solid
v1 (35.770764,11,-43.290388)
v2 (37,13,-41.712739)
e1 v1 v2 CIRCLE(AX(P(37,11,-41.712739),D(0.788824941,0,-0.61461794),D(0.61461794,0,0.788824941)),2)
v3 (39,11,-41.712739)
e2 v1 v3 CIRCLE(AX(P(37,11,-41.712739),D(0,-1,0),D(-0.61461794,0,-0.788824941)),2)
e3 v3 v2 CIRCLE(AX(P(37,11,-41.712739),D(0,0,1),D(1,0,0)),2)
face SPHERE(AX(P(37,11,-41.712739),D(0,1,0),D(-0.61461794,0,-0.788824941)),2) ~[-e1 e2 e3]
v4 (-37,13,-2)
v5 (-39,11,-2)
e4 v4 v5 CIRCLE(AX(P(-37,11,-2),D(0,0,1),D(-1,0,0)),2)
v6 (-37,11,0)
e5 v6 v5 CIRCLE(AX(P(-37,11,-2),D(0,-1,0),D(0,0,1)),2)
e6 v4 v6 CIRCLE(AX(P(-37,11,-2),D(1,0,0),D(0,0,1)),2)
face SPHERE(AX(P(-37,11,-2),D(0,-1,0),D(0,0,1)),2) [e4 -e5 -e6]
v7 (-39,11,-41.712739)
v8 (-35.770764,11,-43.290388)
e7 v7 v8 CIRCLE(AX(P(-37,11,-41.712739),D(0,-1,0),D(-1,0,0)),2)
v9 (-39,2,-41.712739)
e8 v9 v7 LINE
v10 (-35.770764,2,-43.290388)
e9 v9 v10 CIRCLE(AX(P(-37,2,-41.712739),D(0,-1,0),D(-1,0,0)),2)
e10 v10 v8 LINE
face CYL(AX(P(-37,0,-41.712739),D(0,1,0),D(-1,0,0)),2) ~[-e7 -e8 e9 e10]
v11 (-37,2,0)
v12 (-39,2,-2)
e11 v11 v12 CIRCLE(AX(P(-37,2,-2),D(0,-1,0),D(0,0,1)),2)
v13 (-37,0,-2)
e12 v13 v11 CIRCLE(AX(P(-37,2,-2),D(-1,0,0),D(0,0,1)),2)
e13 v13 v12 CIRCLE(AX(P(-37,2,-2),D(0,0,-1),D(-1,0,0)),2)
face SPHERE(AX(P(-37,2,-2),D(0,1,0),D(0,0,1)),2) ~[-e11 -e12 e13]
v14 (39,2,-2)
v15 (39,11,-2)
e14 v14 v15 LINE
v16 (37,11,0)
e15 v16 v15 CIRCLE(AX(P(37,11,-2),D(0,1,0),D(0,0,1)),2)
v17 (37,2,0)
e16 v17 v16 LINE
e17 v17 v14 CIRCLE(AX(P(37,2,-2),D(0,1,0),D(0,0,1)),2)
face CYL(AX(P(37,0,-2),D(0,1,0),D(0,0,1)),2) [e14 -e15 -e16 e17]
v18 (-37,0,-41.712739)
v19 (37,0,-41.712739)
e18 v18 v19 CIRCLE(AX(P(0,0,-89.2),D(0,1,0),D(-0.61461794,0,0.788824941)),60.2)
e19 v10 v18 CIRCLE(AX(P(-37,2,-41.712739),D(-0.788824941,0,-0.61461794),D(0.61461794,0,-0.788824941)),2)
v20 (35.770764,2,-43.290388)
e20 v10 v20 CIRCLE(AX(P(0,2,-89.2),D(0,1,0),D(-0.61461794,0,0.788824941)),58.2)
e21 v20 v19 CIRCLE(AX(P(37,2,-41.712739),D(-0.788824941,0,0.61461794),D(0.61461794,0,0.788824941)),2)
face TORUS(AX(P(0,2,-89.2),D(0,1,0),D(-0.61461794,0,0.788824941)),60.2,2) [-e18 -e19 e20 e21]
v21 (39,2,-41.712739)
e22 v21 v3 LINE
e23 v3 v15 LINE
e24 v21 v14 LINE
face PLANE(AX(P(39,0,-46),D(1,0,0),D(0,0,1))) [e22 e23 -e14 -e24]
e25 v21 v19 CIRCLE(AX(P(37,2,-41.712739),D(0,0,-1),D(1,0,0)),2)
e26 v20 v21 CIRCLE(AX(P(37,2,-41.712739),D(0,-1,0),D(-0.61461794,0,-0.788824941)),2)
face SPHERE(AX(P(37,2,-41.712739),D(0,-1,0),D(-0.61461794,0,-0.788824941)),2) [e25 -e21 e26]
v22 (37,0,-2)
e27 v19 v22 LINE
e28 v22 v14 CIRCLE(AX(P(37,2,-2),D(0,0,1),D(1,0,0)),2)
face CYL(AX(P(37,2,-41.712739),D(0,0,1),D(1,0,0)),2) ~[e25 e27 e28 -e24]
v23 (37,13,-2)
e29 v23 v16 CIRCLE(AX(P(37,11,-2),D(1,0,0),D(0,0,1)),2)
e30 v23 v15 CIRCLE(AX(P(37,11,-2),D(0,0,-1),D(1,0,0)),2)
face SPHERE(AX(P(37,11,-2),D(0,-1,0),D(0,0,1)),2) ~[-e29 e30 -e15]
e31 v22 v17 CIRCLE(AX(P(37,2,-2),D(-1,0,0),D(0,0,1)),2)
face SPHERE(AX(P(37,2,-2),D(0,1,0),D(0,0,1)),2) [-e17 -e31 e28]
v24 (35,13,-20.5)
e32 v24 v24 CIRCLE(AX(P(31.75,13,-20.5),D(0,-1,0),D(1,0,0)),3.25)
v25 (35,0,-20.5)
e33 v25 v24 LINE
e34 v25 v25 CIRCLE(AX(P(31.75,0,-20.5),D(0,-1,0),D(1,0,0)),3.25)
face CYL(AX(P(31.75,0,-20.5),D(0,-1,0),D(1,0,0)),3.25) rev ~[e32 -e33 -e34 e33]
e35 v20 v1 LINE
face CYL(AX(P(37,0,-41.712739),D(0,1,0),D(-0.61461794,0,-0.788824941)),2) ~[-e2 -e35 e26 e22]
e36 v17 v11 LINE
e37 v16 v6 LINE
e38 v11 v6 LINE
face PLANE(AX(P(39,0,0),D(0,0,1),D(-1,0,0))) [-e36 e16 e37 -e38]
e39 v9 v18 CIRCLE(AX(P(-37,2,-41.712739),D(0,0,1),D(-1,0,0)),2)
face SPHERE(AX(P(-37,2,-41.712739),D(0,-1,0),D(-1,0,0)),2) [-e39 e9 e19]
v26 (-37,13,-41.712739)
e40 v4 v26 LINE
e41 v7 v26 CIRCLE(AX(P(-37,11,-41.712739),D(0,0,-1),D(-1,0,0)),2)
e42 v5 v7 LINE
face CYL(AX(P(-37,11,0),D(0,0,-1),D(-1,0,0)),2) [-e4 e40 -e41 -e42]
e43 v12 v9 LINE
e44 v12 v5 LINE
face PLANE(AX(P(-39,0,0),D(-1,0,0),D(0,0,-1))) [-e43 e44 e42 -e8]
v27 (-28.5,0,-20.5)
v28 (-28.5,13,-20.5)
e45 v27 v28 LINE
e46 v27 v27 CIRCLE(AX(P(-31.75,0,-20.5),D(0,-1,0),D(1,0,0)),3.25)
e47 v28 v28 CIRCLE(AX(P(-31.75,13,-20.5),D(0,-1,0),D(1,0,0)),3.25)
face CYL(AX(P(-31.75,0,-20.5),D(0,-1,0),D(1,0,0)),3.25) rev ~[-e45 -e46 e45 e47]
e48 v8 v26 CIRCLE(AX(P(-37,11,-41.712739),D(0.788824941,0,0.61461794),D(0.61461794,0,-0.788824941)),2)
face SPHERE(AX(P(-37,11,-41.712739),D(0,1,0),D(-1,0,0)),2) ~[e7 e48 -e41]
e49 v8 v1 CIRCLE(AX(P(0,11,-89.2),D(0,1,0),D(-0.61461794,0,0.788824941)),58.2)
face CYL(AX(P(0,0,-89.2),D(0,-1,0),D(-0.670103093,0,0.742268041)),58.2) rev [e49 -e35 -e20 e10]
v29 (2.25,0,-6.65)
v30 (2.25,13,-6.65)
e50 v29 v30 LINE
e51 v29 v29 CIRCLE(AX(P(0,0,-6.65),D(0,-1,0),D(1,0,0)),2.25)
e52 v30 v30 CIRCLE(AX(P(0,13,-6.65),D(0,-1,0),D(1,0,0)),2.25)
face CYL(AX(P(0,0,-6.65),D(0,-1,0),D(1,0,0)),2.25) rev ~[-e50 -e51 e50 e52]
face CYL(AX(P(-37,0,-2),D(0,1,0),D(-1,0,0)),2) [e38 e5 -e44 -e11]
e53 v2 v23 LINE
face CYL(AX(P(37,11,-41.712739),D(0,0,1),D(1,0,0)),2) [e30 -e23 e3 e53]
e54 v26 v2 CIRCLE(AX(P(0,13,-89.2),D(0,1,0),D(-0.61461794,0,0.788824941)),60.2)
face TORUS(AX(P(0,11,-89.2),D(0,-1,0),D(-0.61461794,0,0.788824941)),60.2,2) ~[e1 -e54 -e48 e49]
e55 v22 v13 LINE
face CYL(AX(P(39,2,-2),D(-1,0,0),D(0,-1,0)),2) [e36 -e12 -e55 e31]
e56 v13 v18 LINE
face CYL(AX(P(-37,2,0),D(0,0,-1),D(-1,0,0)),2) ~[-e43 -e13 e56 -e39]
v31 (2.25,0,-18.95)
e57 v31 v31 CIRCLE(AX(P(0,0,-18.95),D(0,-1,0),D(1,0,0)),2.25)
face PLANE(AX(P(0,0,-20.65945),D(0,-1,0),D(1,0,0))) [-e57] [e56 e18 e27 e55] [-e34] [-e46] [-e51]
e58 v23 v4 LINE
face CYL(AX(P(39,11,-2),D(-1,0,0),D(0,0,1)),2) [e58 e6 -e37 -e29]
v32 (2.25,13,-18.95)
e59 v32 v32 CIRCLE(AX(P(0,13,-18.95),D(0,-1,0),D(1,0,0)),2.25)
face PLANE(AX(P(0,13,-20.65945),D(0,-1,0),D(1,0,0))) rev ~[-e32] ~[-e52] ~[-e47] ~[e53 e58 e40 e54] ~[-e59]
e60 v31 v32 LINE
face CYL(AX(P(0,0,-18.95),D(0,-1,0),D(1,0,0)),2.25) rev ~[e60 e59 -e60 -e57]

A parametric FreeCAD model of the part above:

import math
import FreeCAD as App
import Part
import Sketcher


def edges_at(feature, points):
    """Names of the edges that pass closest to the given points."""
    edges = feature.Shape.Edges
    near = lambda p: min(range(len(edges)), key=lambda i: edges[i].distToShape(Part.Vertex(*p))[0])
    return sorted({f"Edge{near(p) + 1}" for p in points})

doc = App.newDocument("Part")
body = doc.addObject("PartDesign::Body", "Body")

sketch1 = body.newObject("Sketcher::SketchObject", "Sketch")
sketch1.AttachmentSupport = (doc.getObject("XZ_Plane"), [""])
sketch1.MapMode = "FlatFace"
sketch1.addGeometry(Part.LineSegment(App.Vector(-39, 0, 0), App.Vector(-39, -46, 0)), False)
sketch1.addGeometry(Part.ArcOfCircle(Part.Circle(App.Vector(0, -89.2, 0), App.Vector(0, 0, 1), 58.2), math.radians(48), math.radians(132)), False)
sketch1.addGeometry(Part.LineSegment(App.Vector(39, -46, 0), App.Vector(39, 0, 0)), False)
sketch1.addGeometry(Part.LineSegment(App.Vector(39, 0, 0), App.Vector(-39, 0, 0)), False)
sketch1.addGeometry(Part.Circle(App.Vector(-31.8, -20.5, 0), App.Vector(0, 0, 1), 3.2), False)
sketch1.addGeometry(Part.Circle(App.Vector(0, -18.9, 0), App.Vector(0, 0, 1), 2.2), False)
sketch1.addGeometry(Part.Circle(App.Vector(31.8, -20.5, 0), App.Vector(0, 0, 1), 3.2), False)
sketch1.addGeometry(Part.Circle(App.Vector(0, -6.7, 0), App.Vector(0, 0, 1), 2.2), False)
sketch1.addConstraint(Sketcher.Constraint("Coincident", 0, 2, 1, 2))
sketch1.addConstraint(Sketcher.Constraint("Coincident", 1, 1, 2, 1))
sketch1.addConstraint(Sketcher.Constraint("Coincident", 2, 2, 3, 1))
sketch1.addConstraint(Sketcher.Constraint("Coincident", 3, 2, 0, 1))
sketch1.addConstraint(Sketcher.Constraint("Vertical", 0))
sketch1.addConstraint(Sketcher.Constraint("Vertical", 2))
sketch1.addConstraint(Sketcher.Constraint("Horizontal", 3))
sketch1.addConstraint(Sketcher.Constraint("Equal", 4, 6))
sketch1.addConstraint(Sketcher.Constraint("Equal", 5, 7))
sketch1.addConstraint(Sketcher.Constraint("Symmetric", 2, 2, 3, 2, -1, 1))
sketch1.addConstraint(Sketcher.Constraint("Symmetric", 4, 3, 6, 3, -2))
sketch1.addConstraint(Sketcher.Constraint("PointOnObject", 1, 3, -2))
sketch1.addConstraint(Sketcher.Constraint("PointOnObject", 5, 3, -2))
sketch1.addConstraint(Sketcher.Constraint("PointOnObject", 7, 3, -2))
sketch1.addConstraint(Sketcher.Constraint("Diameter", 4, 6.5))
sketch1.addConstraint(Sketcher.Constraint("Diameter", 5, 4.5))
sketch1.addConstraint(Sketcher.Constraint("Radius", 1, 58.2))
sketch1.addConstraint(Sketcher.Constraint("DistanceX", 3, 2, 3, 1, 78.0))
sketch1.addConstraint(Sketcher.Constraint("DistanceY", 0, 2, 0, 1, 46.0))
sketch1.addConstraint(Sketcher.Constraint("DistanceY", 4, 3, -1, 1, 20.5))
sketch1.addConstraint(Sketcher.Constraint("DistanceX", 4, 3, 6, 3, 63.5))
sketch1.addConstraint(Sketcher.Constraint("DistanceY", 5, 3, 7, 3, 12.3))
sketch1.addConstraint(Sketcher.Constraint("DistanceY", 5, 3, -1, 1, 18.95))
pad1 = body.newObject("PartDesign::Pad", "Pad")
pad1.Profile = sketch1
pad1.Length = 13
pad1.Reversed = True
doc.recompute()

fillet = body.newObject("PartDesign::Fillet", "Fillet")
fillet.Base = (pad1, edges_at(pad1, [(-39, 6.5, -46), (39, 6.5, -46)]))
fillet.Radius = 2
doc.recompute()

fillet2 = body.newObject("PartDesign::Fillet", "Fillet001")
fillet2.Base = (fillet, edges_at(fillet, [
    (-39, 6.5, 0),
    (39, 6.5, 0),
    (0, 0, 0),
    (0, 13, 0),
    (-39, 0, -20.856),
    (-39, 6.5, -41.713),
    (-39, 13, -20.856),
]))
fillet2.Radius = 2

doc.recompute()
